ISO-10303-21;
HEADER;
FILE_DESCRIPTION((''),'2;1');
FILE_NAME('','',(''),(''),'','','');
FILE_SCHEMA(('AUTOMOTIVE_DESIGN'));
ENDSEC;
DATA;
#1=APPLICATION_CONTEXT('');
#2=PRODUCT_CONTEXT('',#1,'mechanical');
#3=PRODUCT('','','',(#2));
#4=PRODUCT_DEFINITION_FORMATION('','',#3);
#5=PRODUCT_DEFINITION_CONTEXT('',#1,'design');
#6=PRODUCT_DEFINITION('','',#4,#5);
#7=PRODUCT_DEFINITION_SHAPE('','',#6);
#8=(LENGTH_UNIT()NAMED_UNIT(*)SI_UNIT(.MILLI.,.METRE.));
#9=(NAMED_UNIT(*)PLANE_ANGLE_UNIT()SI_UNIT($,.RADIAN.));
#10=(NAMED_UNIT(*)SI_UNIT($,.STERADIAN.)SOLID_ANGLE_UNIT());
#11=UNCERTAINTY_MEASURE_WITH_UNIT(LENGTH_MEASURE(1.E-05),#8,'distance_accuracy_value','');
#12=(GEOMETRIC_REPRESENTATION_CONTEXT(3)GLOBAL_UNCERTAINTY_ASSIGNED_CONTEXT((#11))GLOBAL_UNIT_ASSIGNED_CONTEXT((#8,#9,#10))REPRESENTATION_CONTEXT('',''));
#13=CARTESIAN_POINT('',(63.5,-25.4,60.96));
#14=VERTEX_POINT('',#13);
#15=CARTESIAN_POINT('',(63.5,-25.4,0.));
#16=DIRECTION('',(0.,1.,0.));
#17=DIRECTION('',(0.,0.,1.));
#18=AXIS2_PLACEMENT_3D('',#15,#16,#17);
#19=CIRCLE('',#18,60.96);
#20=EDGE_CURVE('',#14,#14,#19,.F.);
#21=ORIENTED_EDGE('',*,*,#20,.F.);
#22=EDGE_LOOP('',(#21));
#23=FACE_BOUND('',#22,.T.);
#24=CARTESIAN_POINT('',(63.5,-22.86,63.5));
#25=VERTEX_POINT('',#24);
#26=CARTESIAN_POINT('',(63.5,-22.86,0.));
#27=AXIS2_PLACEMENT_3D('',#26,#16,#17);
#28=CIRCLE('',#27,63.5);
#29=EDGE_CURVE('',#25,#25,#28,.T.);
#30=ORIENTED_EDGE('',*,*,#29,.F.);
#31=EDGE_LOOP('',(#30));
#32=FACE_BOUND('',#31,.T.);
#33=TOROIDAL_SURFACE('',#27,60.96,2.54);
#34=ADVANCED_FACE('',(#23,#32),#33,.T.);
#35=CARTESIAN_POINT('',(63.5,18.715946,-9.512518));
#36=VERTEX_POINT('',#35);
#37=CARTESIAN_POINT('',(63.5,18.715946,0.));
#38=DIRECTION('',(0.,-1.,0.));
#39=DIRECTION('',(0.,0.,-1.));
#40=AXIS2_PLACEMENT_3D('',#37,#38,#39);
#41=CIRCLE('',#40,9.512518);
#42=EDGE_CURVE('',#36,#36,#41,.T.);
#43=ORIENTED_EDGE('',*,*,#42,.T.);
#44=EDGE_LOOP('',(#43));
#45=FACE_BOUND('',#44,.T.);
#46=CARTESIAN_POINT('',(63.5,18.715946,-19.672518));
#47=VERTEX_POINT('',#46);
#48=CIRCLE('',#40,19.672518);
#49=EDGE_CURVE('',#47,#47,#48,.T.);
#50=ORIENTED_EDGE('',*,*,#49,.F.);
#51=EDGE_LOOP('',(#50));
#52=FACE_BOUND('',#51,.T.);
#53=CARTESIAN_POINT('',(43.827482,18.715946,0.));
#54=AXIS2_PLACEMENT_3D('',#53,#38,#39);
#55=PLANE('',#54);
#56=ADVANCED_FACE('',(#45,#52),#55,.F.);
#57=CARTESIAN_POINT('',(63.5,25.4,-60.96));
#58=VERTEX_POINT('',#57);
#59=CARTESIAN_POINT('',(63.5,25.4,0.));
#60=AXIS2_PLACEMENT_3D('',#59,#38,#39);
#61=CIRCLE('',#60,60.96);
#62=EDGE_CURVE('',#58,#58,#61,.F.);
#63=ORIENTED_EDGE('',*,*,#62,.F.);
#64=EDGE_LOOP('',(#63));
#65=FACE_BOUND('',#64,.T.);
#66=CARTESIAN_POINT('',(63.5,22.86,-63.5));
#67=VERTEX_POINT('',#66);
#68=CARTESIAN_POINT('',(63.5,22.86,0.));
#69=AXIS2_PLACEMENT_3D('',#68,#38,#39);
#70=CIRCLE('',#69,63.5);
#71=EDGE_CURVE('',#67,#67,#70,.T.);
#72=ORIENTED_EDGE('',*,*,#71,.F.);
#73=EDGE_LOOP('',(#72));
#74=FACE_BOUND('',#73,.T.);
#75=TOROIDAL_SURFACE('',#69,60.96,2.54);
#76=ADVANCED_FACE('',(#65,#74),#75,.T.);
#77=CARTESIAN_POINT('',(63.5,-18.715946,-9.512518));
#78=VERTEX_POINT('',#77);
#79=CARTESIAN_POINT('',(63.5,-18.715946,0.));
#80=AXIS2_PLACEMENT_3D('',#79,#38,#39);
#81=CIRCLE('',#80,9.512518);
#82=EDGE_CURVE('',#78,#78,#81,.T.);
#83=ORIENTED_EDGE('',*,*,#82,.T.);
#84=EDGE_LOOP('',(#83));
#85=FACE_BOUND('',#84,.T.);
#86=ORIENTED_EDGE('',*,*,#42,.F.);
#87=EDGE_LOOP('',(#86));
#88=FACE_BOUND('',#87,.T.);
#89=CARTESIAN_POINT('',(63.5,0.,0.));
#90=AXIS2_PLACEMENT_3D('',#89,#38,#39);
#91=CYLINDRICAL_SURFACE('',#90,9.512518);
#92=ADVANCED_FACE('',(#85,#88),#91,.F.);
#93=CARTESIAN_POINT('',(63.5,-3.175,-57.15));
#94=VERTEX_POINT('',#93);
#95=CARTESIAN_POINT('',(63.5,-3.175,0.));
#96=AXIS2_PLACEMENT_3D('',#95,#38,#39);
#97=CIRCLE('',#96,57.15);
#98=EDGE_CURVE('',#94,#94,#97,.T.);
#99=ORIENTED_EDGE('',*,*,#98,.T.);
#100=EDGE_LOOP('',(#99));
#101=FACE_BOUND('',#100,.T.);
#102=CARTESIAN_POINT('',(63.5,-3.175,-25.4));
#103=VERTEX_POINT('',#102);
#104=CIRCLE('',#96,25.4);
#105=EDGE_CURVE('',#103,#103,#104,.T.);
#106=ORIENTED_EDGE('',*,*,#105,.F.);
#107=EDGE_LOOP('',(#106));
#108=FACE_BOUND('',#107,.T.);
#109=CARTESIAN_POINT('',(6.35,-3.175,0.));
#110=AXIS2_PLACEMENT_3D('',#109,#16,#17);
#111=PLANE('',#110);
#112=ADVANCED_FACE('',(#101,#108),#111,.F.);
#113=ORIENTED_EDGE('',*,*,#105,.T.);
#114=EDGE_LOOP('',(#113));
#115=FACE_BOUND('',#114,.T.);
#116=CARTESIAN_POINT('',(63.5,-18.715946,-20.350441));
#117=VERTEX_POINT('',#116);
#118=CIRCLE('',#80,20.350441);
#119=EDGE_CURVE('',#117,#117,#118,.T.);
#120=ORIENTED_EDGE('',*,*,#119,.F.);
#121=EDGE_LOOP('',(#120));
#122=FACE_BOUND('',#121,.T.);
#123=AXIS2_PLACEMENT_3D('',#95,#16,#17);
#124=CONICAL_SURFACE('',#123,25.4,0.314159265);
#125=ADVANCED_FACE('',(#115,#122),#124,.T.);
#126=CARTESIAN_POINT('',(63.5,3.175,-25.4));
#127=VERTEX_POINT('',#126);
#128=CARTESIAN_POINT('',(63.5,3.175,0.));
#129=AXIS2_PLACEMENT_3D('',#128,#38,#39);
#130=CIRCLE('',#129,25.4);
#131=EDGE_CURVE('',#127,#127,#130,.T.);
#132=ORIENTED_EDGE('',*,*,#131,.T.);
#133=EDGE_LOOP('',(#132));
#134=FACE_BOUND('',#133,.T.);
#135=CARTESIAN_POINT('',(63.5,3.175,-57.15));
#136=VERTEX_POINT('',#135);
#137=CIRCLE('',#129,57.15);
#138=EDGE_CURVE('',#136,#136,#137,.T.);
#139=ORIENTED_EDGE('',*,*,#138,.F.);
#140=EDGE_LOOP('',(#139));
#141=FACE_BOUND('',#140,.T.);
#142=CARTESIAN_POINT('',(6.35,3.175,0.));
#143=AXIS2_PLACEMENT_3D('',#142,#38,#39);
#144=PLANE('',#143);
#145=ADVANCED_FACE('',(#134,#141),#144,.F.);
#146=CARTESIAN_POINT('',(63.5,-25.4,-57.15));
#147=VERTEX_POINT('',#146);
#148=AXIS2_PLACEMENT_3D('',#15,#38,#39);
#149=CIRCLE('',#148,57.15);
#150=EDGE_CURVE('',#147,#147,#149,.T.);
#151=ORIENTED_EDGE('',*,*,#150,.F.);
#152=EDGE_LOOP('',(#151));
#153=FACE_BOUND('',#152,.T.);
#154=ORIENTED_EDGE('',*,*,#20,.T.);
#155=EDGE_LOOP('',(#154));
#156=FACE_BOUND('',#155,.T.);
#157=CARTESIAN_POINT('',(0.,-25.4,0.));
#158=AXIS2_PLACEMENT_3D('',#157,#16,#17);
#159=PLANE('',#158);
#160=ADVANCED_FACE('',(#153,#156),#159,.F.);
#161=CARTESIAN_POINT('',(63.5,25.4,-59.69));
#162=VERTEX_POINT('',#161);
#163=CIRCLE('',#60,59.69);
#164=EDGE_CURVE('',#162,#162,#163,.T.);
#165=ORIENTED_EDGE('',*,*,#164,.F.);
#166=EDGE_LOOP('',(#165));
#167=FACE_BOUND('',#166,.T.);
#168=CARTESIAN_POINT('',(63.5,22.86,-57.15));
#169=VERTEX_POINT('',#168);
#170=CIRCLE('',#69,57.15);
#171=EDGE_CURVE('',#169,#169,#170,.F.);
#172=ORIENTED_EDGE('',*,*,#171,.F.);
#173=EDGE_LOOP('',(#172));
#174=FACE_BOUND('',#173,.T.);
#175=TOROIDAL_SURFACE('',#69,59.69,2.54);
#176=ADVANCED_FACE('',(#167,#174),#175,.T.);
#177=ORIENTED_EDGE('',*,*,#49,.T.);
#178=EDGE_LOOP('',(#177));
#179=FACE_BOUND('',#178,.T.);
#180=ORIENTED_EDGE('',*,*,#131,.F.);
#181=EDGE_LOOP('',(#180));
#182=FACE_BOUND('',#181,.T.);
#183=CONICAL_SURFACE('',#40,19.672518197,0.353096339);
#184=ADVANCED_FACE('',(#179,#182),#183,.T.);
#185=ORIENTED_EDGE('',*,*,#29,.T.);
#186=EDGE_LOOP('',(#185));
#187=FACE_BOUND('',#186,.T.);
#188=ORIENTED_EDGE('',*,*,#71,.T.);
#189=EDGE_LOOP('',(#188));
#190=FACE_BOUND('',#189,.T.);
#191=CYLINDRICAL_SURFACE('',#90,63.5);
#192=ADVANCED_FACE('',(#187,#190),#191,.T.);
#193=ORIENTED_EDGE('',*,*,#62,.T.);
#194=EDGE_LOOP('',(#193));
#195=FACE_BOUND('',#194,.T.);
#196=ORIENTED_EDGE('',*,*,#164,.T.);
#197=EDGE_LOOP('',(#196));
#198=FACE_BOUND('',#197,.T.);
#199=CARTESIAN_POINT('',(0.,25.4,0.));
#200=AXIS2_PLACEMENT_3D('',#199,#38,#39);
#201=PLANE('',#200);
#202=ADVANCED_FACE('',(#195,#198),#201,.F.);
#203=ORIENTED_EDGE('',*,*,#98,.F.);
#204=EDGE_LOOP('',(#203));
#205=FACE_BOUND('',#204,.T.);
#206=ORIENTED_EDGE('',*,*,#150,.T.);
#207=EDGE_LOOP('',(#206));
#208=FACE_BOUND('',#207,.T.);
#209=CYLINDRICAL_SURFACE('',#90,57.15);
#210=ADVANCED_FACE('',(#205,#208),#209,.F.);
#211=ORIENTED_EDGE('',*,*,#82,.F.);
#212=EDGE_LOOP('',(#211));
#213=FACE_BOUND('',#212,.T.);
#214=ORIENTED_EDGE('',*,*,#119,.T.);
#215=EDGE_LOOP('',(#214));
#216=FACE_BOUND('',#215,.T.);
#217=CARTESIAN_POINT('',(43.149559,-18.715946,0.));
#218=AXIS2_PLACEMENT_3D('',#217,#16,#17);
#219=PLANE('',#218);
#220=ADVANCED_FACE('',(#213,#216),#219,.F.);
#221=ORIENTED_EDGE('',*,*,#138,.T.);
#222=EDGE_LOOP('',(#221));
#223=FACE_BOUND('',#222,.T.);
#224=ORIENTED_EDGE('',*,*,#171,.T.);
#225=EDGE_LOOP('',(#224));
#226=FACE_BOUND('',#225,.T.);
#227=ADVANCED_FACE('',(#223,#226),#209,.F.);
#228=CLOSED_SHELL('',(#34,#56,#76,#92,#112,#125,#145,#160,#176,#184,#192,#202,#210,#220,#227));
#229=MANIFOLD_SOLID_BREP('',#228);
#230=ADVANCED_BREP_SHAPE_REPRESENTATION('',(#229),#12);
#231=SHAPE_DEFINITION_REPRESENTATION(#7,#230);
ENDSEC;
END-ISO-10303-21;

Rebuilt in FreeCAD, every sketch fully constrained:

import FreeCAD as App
import Part
import Sketcher
Q = App.Units.Quantity


def edges_at(feature, points):
    """Names of the edges that pass closest to the given points."""
    edges = feature.Shape.Edges
    near = lambda p: min(range(len(edges)), key=lambda i: edges[i].distToShape(Part.Vertex(*p))[0])
    return sorted({f"Edge{near(p) + 1}" for p in points})

doc = App.newDocument("Part")
params = doc.addObject("Spreadsheet::Sheet", "Params")
for row, (alias, value) in enumerate([
    ("sketch1_height", "2 in"),
    ("sketch1_width", "0.4 in"),
    ("sketch1_width2", "0.25 in"),
    ("sketch1_width3", "1.25 in"),
    ("sketch1_height2", "0.875 in"),
    ("revolution_angle", "360 deg"),
    ("fillet_radius", "0.1 in"),
], start=1):
    params.set(f"A{row}", alias)
    params.set(f"B{row}", "=" + value)
    params.setAlias(f"B{row}", alias)

body = doc.addObject("PartDesign::Body", "Body")

# Sketch on XY plane
sketch1 = body.newObject("Sketcher::SketchObject", "Sketch")
sketch1.AttachmentSupport = (doc.getObject("XY_Plane"), [""])
sketch1.MapMode = "FlatFace"
sketch1.addGeometry([
    Part.LineSegment(App.Vector(0, 25, 0), App.Vector(0, -25, 0)),  # 0
    Part.LineSegment(App.Vector(0, -25, 0), App.Vector(6, -25, 0)),  # 1
    Part.LineSegment(App.Vector(6, -25, 0), App.Vector(6, -3, 0)),  # 2
    Part.LineSegment(App.Vector(6, -3, 0), App.Vector(38, -3, 0)),  # 3
    Part.LineSegment(App.Vector(38, -3, 0), App.Vector(43, -19, 0)),  # 4
    Part.LineSegment(App.Vector(43, -19, 0), App.Vector(54, -19, 0)),  # 5
    Part.LineSegment(App.Vector(54, -19, 0), App.Vector(54, 19, 0)),  # 6
    Part.LineSegment(App.Vector(54, 19, 0), App.Vector(44, 19, 0)),  # 7
    Part.LineSegment(App.Vector(44, 19, 0), App.Vector(38, 3, 0)),  # 8
    Part.LineSegment(App.Vector(38, 3, 0), App.Vector(6, 3, 0)),  # 9
    Part.LineSegment(App.Vector(6, 3, 0), App.Vector(6, 25, 0)),  # 10
    Part.LineSegment(App.Vector(6, 25, 0), App.Vector(0, 25, 0)),  # 11
], False)
sketch1.addGeometry(Part.LineSegment(App.Vector(64, -25, 0), App.Vector(64, 25, 0)), True)  # axis
sketch1.addConstraint([
    Sketcher.Constraint("Coincident", 0, 2, 1, 1),
    Sketcher.Constraint("Coincident", 1, 2, 2, 1),
    Sketcher.Constraint("Coincident", 2, 2, 3, 1),
    Sketcher.Constraint("Coincident", 3, 2, 4, 1),
    Sketcher.Constraint("Coincident", 4, 2, 5, 1),
    Sketcher.Constraint("Coincident", 5, 2, 6, 1),
    Sketcher.Constraint("Coincident", 6, 2, 7, 1),
    Sketcher.Constraint("Coincident", 7, 2, 8, 1),
    Sketcher.Constraint("Coincident", 8, 2, 9, 1),
    Sketcher.Constraint("Coincident", 9, 2, 10, 1),
    Sketcher.Constraint("Coincident", 10, 2, 11, 1),
    Sketcher.Constraint("Coincident", 11, 2, 0, 1),
    Sketcher.Constraint("Vertical", 0),
    Sketcher.Constraint("Horizontal", 1),
    Sketcher.Constraint("Vertical", 2),
    Sketcher.Constraint("Horizontal", 3),
    Sketcher.Constraint("Horizontal", 5),
    Sketcher.Constraint("Vertical", 6),
    Sketcher.Constraint("Horizontal", 7),
    Sketcher.Constraint("Horizontal", 9),
    Sketcher.Constraint("Vertical", 10),
    Sketcher.Constraint("Horizontal", 11),
    Sketcher.Constraint("Vertical", 12),
    Sketcher.Constraint("Symmetric", 0, 2, 11, 2, -1, 1),
    Sketcher.Constraint("Symmetric", 3, 2, 8, 2, -1),
    Sketcher.Constraint("Horizontal", 1, 2, 12, 1),
    Sketcher.Constraint("Horizontal", 11, 2, 12, 2),
    Sketcher.Constraint("Vertical", 2, 2, 9, 2),
    Sketcher.Constraint("DistanceY", 0, 2, 0, 1, Q("2 in")),
    Sketcher.Constraint("DistanceX", 7, 2, 7, 1, Q("0.4 in")),
    Sketcher.Constraint("Angle", 4, Q("-72 deg")),
    Sketcher.Constraint("DistanceX", 3, 2, 12, 1, Q("1 in")),
    Sketcher.Constraint("DistanceX", 1, 1, 1, 2, Q("0.25 in")),
    Sketcher.Constraint("DistanceX", 3, 1, 3, 2, Q("1.25 in")),
    Sketcher.Constraint("DistanceY", 2, 1, 2, 2, Q("0.875 in")),
    Sketcher.Constraint("DistanceY", 6, 1, 6, 2, Q("37.431892 mm")),
    Sketcher.Constraint("Distance", 8, Q("16.562761 mm")),
    Sketcher.Constraint("DistanceX", 5, 1, 5, 2, Q("10.837922 mm")),
])
sketch1.setExpression("Constraints[28]", "Params.sketch1_height")
sketch1.setExpression("Constraints[29]", "Params.sketch1_width")
sketch1.setExpression("Constraints[32]", "Params.sketch1_width2")
sketch1.setExpression("Constraints[33]", "Params.sketch1_width3")
sketch1.setExpression("Constraints[34]", "Params.sketch1_height2")
revolution = body.newObject("PartDesign::Revolution", "Revolution")
revolution.Profile = sketch1
revolution.ReferenceAxis = (sketch1, ["Axis0"])
revolution.setExpression("Angle", "Params.revolution_angle")
doc.recompute()

fillet = body.newObject("PartDesign::Fillet", "Fillet")
fillet.Base = (revolution, edges_at(revolution, [(120.65, 25.4, 0), (127, 25.4, 0), (127, -25.4, 0)]))
fillet.setExpression("Radius", "Params.fillet_radius")

doc.recompute()
